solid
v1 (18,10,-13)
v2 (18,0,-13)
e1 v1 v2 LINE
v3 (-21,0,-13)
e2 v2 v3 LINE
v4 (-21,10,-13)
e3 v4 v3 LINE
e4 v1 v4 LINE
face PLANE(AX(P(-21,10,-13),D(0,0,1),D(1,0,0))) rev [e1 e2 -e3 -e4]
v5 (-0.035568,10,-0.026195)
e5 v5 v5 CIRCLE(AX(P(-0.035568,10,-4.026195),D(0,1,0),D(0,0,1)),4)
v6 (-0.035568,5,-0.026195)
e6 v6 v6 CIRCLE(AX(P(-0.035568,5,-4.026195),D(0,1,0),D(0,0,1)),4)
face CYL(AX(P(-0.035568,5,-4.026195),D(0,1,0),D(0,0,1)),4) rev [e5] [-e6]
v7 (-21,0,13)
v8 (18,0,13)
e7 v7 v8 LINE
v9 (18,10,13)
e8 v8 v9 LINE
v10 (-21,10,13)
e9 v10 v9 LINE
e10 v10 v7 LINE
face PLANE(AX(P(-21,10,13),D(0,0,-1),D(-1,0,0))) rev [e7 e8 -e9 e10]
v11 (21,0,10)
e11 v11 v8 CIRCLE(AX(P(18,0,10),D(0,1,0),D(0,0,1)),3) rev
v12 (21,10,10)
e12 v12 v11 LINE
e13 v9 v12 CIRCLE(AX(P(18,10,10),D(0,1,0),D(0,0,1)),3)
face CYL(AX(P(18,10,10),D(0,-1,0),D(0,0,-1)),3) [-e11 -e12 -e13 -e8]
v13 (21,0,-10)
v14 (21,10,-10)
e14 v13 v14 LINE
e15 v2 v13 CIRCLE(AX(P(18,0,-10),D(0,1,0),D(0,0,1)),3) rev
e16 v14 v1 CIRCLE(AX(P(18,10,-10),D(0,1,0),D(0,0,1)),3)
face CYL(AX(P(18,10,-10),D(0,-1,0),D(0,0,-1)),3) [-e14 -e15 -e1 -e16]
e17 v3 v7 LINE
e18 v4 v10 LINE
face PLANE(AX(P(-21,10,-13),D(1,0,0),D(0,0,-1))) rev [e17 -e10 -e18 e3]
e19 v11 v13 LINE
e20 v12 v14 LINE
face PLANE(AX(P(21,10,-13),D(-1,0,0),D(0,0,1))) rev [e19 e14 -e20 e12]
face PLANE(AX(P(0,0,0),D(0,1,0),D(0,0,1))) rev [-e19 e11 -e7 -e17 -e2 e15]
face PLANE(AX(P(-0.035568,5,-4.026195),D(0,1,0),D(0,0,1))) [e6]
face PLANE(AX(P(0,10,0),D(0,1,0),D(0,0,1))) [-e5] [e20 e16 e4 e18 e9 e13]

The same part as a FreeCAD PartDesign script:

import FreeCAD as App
import Part
import Sketcher
from FreeCAD import Vector


def edges_at(feature, points):
    """Names of the edges that pass closest to the given points."""
    edges = feature.Shape.Edges
    near = lambda p: min(range(len(edges)), key=lambda i: edges[i].distToShape(Part.Vertex(*p))[0])
    return sorted({f"Edge{near(p) + 1}" for p in points})

doc = App.newDocument("Part")
params = doc.addObject("Spreadsheet::Sheet", "Params")
for row, (alias, value) in enumerate([
    ("sketch1_width", "42 mm"),
    ("sketch1_height", "26 mm"),
    ("pad1_length", "10 mm"),
    ("sketch2_diameter", "8 mm"),
    ("pocket1_length", "5 mm"),
    ("fillet_radius", "3 mm"),
], start=1):
    params.set(f"A{row}", alias)
    params.set(f"B{row}", "=" + value)
    params.setAlias(f"B{row}", alias)

body = doc.addObject("PartDesign::Body", "Body")

# Sketch on XZ plane
sketch1 = body.newObject("Sketcher::SketchObject", "Sketch")
sketch1.AttachmentSupport = (doc.getObject("XZ_Plane"), [""])
sketch1.MapMode = "FlatFace"
sketch1.addGeometry(Part.LineSegment(Vector(-21, -13, 0), Vector(-21, 13, 0)), False)
sketch1.addGeometry(Part.LineSegment(Vector(-21, 13, 0), Vector(21, 13, 0)), False)
sketch1.addGeometry(Part.LineSegment(Vector(21, 13, 0), Vector(21, -13, 0)), False)
sketch1.addGeometry(Part.LineSegment(Vector(21, -13, 0), Vector(-21, -13, 0)), False)
sketch1.addConstraint(Sketcher.Constraint("Coincident", 0, 2, 1, 1))
sketch1.addConstraint(Sketcher.Constraint("Coincident", 1, 2, 2, 1))
sketch1.addConstraint(Sketcher.Constraint("Coincident", 2, 2, 3, 1))
sketch1.addConstraint(Sketcher.Constraint("Coincident", 3, 2, 0, 1))
sketch1.addConstraint(Sketcher.Constraint("Vertical", 0))
sketch1.addConstraint(Sketcher.Constraint("Horizontal", 1))
sketch1.addConstraint(Sketcher.Constraint("Vertical", 2))
sketch1.addConstraint(Sketcher.Constraint("Horizontal", 3))
sketch1.addConstraint(Sketcher.Constraint("Symmetric", 0, 2, 2, 2, -1, 1))
sketch1.addConstraint(Sketcher.Constraint("DistanceX", 1, 1, 1, 2, 42.0))
sketch1.addConstraint(Sketcher.Constraint("DistanceY", 0, 1, 0, 2, 26.0))
sketch1.setExpression("Constraints[9]", "Params.sketch1_width")
sketch1.setExpression("Constraints[10]", "Params.sketch1_height")
pad1 = body.newObject("PartDesign::Pad", "Pad")
pad1.Profile = sketch1
pad1.setExpression("Length", "Params.pad1_length")
pad1.Reversed = True

# Sketch on XZ plane
sketch2 = body.newObject("Sketcher::SketchObject", "Sketch001")
sketch2.AttachmentSupport = (doc.getObject("XZ_Plane"), [""])
sketch2.MapMode = "FlatFace"
sketch2.AttachmentOffset = App.Placement(Vector(0, 0, -10), App.Rotation())
sketch2.addGeometry(Part.Circle(Vector(0, -4, 0), Vector(0, 0, 1), 4), False)
sketch2.addConstraint(Sketcher.Constraint("Diameter", 0, 8.0))
sketch2.addConstraint(Sketcher.Constraint("DistanceX", 0, 3, -1, 1, 0.035568))
sketch2.addConstraint(Sketcher.Constraint("DistanceY", 0, 3, -1, 1, 4.026195))
sketch2.setExpression("Constraints[0]", "Params.sketch2_diameter")
pocket1 = body.newObject("PartDesign::Pocket", "Pocket")
pocket1.Profile = sketch2
pocket1.setExpression("Length", "Params.pocket1_length")
pocket1.Reversed = True
doc.recompute()

fillet = body.newObject("PartDesign::Fillet", "Fillet")
fillet.Base = (pocket1, edges_at(pocket1, [(21, 5, 13), (21, 5, -13)]))
fillet.setExpression("Radius", "Params.fillet_radius")

doc.recompute()
